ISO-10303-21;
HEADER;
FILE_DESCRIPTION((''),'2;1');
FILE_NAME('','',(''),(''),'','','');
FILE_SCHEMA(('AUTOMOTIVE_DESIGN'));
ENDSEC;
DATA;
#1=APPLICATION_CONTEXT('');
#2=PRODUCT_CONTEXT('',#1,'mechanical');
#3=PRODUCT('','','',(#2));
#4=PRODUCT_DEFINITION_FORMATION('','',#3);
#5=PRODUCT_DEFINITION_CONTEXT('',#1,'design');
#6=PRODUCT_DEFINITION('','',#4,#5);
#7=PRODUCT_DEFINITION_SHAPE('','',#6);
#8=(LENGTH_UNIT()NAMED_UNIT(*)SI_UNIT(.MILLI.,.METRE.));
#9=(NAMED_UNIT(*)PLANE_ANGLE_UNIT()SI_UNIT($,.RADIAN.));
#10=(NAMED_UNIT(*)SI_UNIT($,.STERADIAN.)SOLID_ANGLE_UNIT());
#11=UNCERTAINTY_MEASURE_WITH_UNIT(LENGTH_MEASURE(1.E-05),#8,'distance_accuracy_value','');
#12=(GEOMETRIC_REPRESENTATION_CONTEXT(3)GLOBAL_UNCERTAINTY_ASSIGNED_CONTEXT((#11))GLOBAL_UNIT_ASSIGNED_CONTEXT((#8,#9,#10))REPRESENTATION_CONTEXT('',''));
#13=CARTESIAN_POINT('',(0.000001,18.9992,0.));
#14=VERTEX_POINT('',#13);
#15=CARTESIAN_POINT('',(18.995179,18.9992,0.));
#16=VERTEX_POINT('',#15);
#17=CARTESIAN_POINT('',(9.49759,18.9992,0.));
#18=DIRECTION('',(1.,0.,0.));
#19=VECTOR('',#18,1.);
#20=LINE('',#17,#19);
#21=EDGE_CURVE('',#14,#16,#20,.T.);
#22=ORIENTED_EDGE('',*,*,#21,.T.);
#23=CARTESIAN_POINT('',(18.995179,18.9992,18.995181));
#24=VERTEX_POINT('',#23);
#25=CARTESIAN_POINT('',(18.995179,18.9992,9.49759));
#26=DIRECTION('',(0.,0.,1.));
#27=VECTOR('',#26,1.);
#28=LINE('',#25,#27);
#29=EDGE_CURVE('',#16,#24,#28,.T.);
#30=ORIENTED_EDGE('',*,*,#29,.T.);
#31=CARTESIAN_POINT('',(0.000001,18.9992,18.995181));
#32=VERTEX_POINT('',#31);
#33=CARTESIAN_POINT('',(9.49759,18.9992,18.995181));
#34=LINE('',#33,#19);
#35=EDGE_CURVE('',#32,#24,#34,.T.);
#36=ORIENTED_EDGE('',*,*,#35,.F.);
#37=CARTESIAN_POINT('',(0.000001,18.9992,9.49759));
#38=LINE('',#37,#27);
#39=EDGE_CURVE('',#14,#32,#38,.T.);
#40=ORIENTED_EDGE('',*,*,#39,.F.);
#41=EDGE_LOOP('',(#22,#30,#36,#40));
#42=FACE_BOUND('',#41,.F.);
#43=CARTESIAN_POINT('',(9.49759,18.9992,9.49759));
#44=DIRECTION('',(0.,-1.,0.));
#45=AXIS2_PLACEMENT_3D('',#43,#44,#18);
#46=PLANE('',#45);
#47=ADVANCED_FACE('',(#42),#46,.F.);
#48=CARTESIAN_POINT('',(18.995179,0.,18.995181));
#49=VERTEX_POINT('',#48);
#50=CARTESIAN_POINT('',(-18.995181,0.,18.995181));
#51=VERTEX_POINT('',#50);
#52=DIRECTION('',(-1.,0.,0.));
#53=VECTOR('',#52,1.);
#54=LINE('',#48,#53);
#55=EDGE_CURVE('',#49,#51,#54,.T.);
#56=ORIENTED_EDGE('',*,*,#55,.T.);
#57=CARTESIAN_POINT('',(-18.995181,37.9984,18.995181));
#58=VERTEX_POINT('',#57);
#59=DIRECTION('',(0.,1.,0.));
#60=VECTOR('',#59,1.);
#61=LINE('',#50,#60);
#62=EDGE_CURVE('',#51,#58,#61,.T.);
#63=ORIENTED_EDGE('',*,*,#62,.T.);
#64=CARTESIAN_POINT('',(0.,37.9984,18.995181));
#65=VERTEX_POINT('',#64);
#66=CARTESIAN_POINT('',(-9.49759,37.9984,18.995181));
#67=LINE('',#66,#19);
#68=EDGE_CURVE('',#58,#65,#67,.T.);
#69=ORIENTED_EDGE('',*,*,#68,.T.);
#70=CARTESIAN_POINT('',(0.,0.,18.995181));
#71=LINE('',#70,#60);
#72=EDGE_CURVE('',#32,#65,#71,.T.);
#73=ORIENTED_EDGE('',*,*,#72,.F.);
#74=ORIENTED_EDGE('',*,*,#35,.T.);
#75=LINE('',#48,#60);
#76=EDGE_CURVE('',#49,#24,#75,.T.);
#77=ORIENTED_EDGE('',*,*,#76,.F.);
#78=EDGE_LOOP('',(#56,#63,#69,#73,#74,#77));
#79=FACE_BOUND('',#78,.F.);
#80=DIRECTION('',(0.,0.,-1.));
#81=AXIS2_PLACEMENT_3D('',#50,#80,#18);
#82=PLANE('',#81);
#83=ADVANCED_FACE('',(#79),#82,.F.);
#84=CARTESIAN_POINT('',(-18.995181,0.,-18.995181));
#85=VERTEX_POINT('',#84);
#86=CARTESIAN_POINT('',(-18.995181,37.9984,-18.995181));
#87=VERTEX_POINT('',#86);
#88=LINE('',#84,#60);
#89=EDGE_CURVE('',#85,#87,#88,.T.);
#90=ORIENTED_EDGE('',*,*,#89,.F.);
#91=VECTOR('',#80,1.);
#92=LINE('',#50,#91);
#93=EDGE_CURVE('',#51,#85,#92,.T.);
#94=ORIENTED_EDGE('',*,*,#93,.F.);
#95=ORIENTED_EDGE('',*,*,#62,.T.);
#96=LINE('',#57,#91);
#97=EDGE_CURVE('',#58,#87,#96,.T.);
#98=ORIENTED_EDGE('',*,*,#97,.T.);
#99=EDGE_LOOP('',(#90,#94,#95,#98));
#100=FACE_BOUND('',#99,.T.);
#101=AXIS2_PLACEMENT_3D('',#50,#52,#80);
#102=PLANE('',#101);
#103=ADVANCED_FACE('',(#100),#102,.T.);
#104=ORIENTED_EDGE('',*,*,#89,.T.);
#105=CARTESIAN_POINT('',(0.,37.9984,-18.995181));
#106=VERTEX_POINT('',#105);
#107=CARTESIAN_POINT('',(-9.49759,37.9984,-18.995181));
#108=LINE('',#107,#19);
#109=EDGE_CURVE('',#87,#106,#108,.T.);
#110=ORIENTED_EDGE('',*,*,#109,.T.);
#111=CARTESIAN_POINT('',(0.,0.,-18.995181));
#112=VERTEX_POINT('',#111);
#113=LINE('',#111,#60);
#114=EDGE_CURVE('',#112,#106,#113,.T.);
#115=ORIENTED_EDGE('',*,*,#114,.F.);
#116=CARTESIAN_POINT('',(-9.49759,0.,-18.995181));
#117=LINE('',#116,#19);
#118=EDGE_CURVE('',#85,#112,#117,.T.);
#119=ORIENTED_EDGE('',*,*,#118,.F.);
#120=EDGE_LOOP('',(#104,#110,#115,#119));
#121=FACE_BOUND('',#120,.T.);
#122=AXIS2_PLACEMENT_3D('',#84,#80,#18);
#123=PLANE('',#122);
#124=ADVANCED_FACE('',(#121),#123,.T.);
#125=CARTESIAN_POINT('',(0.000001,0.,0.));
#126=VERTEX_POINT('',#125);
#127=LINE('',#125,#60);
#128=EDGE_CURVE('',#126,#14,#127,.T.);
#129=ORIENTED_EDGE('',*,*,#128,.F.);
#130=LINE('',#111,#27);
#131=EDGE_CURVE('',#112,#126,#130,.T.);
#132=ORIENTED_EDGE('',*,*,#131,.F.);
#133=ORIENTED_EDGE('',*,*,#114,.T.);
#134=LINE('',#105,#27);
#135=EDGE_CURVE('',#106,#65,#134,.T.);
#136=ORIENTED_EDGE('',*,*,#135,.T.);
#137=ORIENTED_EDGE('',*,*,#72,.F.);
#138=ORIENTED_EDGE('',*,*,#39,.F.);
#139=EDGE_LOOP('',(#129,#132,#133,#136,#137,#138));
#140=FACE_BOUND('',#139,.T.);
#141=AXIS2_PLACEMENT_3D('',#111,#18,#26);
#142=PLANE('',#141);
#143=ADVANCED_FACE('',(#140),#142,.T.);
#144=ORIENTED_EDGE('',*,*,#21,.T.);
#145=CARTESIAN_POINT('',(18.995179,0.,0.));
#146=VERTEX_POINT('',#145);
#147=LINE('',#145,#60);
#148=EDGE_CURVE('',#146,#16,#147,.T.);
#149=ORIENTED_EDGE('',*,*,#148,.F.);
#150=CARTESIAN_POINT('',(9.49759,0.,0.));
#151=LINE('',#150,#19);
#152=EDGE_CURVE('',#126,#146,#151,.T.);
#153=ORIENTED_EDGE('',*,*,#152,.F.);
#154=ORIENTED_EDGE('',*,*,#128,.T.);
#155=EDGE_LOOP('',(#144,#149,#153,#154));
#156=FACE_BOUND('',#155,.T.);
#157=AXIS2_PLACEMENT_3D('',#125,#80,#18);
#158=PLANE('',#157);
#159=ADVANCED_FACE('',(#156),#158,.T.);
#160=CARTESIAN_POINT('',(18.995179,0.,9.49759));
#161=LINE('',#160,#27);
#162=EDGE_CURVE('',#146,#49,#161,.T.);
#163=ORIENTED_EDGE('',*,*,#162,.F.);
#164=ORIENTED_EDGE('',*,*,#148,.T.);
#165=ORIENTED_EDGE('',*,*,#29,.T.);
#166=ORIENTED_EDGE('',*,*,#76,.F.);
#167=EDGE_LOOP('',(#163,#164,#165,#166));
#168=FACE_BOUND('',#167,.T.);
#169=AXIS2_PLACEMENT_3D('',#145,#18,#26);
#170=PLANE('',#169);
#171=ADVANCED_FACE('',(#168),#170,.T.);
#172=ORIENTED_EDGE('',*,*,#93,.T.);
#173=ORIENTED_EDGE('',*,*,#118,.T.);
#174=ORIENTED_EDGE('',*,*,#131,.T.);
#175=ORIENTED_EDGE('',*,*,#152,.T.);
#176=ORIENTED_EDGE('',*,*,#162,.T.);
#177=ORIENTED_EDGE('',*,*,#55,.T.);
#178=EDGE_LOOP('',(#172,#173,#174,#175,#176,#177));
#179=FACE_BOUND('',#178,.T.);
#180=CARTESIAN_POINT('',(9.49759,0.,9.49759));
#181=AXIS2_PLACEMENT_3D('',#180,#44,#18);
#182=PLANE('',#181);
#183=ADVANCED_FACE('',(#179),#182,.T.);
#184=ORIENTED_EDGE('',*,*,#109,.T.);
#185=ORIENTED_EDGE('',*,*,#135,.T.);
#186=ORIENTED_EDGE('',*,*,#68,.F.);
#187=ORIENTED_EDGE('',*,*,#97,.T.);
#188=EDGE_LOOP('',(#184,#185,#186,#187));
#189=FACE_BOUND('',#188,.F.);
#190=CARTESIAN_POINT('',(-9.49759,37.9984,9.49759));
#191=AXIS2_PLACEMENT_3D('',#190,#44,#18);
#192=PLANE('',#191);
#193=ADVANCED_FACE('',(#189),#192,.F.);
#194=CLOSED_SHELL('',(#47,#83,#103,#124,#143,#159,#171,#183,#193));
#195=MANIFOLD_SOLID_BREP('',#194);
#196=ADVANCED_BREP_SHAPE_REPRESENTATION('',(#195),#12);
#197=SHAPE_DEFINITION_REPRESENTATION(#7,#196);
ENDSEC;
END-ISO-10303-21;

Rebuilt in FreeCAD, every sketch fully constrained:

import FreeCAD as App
import Part
import Sketcher
Q = App.Units.Quantity


def add_polygon(sketch, points):
    """Adds a closed chain of lines whose ends are joined by coincident constraints."""
    first, n = sketch.GeometryCount, len(points)
    for a, b in zip(points, points[1:] + points[:1]):
        sketch.addGeometry(Part.LineSegment(App.Vector(*a, 0), App.Vector(*b, 0)), False)
    for i in range(n):
        sketch.addConstraint(Sketcher.Constraint("Coincident", first + i, 2, first + (i + 1) % n, 1))

doc = App.newDocument("Part")
body = doc.addObject("PartDesign::Body", "Body")

sketch1 = doc.addObject("Sketcher::SketchObject", "Sketch")
body.addObject(sketch1)
sketch1.AttachmentSupport = (doc.XZ_Plane, [""])
sketch1.MapMode = "FlatFace"
add_polygon(sketch1, [(-19, -19), (0, -19), (0, 19), (-19, 19)])
sketch1.addConstraint([
    Sketcher.Constraint("Horizontal", 0),
    Sketcher.Constraint("Vertical", 1),
    Sketcher.Constraint("Horizontal", 2),
    Sketcher.Constraint("Vertical", 3),
    Sketcher.Constraint("Symmetric", 0, 2, 1, 2, -1, 1),
    Sketcher.Constraint("DistanceX", 0, 1, 0, 2, Q("18.995181 mm")),
    Sketcher.Constraint("DistanceY", 1, 1, 1, 2, Q("37.990361 mm")),
])
pad1 = doc.addObject("PartDesign::Pad", "Pad")
body.addObject(pad1)
pad1.Profile = sketch1
pad1.Length = Q("1.496 in")
pad1.Reversed = True

sketch2 = doc.addObject("Sketcher::SketchObject", "Sketch001")
body.addObject(sketch2)
sketch2.AttachmentSupport = (doc.XZ_Plane, [""])
sketch2.MapMode = "FlatFace"
add_polygon(sketch2, [(0, 19), (0, 0), (19, 0), (19, 19)])
sketch2.addConstraint([
    Sketcher.Constraint("Vertical", 0),
    Sketcher.Constraint("Horizontal", 1),
    Sketcher.Constraint("Vertical", 2),
    Sketcher.Constraint("Horizontal", 3),
    Sketcher.Constraint("Coincident", 0, 2, -1, 1),
    Sketcher.Constraint("Equal", 3, 0),
    Sketcher.Constraint("DistanceX", 1, 1, 1, 2, Q("18.995179 mm")),
])
pad2 = doc.addObject("PartDesign::Pad", "Pad001")
body.addObject(pad2)
pad2.Profile = sketch2
pad2.Length = Q("0.748 in")
pad2.Reversed = True

doc.recompute()
